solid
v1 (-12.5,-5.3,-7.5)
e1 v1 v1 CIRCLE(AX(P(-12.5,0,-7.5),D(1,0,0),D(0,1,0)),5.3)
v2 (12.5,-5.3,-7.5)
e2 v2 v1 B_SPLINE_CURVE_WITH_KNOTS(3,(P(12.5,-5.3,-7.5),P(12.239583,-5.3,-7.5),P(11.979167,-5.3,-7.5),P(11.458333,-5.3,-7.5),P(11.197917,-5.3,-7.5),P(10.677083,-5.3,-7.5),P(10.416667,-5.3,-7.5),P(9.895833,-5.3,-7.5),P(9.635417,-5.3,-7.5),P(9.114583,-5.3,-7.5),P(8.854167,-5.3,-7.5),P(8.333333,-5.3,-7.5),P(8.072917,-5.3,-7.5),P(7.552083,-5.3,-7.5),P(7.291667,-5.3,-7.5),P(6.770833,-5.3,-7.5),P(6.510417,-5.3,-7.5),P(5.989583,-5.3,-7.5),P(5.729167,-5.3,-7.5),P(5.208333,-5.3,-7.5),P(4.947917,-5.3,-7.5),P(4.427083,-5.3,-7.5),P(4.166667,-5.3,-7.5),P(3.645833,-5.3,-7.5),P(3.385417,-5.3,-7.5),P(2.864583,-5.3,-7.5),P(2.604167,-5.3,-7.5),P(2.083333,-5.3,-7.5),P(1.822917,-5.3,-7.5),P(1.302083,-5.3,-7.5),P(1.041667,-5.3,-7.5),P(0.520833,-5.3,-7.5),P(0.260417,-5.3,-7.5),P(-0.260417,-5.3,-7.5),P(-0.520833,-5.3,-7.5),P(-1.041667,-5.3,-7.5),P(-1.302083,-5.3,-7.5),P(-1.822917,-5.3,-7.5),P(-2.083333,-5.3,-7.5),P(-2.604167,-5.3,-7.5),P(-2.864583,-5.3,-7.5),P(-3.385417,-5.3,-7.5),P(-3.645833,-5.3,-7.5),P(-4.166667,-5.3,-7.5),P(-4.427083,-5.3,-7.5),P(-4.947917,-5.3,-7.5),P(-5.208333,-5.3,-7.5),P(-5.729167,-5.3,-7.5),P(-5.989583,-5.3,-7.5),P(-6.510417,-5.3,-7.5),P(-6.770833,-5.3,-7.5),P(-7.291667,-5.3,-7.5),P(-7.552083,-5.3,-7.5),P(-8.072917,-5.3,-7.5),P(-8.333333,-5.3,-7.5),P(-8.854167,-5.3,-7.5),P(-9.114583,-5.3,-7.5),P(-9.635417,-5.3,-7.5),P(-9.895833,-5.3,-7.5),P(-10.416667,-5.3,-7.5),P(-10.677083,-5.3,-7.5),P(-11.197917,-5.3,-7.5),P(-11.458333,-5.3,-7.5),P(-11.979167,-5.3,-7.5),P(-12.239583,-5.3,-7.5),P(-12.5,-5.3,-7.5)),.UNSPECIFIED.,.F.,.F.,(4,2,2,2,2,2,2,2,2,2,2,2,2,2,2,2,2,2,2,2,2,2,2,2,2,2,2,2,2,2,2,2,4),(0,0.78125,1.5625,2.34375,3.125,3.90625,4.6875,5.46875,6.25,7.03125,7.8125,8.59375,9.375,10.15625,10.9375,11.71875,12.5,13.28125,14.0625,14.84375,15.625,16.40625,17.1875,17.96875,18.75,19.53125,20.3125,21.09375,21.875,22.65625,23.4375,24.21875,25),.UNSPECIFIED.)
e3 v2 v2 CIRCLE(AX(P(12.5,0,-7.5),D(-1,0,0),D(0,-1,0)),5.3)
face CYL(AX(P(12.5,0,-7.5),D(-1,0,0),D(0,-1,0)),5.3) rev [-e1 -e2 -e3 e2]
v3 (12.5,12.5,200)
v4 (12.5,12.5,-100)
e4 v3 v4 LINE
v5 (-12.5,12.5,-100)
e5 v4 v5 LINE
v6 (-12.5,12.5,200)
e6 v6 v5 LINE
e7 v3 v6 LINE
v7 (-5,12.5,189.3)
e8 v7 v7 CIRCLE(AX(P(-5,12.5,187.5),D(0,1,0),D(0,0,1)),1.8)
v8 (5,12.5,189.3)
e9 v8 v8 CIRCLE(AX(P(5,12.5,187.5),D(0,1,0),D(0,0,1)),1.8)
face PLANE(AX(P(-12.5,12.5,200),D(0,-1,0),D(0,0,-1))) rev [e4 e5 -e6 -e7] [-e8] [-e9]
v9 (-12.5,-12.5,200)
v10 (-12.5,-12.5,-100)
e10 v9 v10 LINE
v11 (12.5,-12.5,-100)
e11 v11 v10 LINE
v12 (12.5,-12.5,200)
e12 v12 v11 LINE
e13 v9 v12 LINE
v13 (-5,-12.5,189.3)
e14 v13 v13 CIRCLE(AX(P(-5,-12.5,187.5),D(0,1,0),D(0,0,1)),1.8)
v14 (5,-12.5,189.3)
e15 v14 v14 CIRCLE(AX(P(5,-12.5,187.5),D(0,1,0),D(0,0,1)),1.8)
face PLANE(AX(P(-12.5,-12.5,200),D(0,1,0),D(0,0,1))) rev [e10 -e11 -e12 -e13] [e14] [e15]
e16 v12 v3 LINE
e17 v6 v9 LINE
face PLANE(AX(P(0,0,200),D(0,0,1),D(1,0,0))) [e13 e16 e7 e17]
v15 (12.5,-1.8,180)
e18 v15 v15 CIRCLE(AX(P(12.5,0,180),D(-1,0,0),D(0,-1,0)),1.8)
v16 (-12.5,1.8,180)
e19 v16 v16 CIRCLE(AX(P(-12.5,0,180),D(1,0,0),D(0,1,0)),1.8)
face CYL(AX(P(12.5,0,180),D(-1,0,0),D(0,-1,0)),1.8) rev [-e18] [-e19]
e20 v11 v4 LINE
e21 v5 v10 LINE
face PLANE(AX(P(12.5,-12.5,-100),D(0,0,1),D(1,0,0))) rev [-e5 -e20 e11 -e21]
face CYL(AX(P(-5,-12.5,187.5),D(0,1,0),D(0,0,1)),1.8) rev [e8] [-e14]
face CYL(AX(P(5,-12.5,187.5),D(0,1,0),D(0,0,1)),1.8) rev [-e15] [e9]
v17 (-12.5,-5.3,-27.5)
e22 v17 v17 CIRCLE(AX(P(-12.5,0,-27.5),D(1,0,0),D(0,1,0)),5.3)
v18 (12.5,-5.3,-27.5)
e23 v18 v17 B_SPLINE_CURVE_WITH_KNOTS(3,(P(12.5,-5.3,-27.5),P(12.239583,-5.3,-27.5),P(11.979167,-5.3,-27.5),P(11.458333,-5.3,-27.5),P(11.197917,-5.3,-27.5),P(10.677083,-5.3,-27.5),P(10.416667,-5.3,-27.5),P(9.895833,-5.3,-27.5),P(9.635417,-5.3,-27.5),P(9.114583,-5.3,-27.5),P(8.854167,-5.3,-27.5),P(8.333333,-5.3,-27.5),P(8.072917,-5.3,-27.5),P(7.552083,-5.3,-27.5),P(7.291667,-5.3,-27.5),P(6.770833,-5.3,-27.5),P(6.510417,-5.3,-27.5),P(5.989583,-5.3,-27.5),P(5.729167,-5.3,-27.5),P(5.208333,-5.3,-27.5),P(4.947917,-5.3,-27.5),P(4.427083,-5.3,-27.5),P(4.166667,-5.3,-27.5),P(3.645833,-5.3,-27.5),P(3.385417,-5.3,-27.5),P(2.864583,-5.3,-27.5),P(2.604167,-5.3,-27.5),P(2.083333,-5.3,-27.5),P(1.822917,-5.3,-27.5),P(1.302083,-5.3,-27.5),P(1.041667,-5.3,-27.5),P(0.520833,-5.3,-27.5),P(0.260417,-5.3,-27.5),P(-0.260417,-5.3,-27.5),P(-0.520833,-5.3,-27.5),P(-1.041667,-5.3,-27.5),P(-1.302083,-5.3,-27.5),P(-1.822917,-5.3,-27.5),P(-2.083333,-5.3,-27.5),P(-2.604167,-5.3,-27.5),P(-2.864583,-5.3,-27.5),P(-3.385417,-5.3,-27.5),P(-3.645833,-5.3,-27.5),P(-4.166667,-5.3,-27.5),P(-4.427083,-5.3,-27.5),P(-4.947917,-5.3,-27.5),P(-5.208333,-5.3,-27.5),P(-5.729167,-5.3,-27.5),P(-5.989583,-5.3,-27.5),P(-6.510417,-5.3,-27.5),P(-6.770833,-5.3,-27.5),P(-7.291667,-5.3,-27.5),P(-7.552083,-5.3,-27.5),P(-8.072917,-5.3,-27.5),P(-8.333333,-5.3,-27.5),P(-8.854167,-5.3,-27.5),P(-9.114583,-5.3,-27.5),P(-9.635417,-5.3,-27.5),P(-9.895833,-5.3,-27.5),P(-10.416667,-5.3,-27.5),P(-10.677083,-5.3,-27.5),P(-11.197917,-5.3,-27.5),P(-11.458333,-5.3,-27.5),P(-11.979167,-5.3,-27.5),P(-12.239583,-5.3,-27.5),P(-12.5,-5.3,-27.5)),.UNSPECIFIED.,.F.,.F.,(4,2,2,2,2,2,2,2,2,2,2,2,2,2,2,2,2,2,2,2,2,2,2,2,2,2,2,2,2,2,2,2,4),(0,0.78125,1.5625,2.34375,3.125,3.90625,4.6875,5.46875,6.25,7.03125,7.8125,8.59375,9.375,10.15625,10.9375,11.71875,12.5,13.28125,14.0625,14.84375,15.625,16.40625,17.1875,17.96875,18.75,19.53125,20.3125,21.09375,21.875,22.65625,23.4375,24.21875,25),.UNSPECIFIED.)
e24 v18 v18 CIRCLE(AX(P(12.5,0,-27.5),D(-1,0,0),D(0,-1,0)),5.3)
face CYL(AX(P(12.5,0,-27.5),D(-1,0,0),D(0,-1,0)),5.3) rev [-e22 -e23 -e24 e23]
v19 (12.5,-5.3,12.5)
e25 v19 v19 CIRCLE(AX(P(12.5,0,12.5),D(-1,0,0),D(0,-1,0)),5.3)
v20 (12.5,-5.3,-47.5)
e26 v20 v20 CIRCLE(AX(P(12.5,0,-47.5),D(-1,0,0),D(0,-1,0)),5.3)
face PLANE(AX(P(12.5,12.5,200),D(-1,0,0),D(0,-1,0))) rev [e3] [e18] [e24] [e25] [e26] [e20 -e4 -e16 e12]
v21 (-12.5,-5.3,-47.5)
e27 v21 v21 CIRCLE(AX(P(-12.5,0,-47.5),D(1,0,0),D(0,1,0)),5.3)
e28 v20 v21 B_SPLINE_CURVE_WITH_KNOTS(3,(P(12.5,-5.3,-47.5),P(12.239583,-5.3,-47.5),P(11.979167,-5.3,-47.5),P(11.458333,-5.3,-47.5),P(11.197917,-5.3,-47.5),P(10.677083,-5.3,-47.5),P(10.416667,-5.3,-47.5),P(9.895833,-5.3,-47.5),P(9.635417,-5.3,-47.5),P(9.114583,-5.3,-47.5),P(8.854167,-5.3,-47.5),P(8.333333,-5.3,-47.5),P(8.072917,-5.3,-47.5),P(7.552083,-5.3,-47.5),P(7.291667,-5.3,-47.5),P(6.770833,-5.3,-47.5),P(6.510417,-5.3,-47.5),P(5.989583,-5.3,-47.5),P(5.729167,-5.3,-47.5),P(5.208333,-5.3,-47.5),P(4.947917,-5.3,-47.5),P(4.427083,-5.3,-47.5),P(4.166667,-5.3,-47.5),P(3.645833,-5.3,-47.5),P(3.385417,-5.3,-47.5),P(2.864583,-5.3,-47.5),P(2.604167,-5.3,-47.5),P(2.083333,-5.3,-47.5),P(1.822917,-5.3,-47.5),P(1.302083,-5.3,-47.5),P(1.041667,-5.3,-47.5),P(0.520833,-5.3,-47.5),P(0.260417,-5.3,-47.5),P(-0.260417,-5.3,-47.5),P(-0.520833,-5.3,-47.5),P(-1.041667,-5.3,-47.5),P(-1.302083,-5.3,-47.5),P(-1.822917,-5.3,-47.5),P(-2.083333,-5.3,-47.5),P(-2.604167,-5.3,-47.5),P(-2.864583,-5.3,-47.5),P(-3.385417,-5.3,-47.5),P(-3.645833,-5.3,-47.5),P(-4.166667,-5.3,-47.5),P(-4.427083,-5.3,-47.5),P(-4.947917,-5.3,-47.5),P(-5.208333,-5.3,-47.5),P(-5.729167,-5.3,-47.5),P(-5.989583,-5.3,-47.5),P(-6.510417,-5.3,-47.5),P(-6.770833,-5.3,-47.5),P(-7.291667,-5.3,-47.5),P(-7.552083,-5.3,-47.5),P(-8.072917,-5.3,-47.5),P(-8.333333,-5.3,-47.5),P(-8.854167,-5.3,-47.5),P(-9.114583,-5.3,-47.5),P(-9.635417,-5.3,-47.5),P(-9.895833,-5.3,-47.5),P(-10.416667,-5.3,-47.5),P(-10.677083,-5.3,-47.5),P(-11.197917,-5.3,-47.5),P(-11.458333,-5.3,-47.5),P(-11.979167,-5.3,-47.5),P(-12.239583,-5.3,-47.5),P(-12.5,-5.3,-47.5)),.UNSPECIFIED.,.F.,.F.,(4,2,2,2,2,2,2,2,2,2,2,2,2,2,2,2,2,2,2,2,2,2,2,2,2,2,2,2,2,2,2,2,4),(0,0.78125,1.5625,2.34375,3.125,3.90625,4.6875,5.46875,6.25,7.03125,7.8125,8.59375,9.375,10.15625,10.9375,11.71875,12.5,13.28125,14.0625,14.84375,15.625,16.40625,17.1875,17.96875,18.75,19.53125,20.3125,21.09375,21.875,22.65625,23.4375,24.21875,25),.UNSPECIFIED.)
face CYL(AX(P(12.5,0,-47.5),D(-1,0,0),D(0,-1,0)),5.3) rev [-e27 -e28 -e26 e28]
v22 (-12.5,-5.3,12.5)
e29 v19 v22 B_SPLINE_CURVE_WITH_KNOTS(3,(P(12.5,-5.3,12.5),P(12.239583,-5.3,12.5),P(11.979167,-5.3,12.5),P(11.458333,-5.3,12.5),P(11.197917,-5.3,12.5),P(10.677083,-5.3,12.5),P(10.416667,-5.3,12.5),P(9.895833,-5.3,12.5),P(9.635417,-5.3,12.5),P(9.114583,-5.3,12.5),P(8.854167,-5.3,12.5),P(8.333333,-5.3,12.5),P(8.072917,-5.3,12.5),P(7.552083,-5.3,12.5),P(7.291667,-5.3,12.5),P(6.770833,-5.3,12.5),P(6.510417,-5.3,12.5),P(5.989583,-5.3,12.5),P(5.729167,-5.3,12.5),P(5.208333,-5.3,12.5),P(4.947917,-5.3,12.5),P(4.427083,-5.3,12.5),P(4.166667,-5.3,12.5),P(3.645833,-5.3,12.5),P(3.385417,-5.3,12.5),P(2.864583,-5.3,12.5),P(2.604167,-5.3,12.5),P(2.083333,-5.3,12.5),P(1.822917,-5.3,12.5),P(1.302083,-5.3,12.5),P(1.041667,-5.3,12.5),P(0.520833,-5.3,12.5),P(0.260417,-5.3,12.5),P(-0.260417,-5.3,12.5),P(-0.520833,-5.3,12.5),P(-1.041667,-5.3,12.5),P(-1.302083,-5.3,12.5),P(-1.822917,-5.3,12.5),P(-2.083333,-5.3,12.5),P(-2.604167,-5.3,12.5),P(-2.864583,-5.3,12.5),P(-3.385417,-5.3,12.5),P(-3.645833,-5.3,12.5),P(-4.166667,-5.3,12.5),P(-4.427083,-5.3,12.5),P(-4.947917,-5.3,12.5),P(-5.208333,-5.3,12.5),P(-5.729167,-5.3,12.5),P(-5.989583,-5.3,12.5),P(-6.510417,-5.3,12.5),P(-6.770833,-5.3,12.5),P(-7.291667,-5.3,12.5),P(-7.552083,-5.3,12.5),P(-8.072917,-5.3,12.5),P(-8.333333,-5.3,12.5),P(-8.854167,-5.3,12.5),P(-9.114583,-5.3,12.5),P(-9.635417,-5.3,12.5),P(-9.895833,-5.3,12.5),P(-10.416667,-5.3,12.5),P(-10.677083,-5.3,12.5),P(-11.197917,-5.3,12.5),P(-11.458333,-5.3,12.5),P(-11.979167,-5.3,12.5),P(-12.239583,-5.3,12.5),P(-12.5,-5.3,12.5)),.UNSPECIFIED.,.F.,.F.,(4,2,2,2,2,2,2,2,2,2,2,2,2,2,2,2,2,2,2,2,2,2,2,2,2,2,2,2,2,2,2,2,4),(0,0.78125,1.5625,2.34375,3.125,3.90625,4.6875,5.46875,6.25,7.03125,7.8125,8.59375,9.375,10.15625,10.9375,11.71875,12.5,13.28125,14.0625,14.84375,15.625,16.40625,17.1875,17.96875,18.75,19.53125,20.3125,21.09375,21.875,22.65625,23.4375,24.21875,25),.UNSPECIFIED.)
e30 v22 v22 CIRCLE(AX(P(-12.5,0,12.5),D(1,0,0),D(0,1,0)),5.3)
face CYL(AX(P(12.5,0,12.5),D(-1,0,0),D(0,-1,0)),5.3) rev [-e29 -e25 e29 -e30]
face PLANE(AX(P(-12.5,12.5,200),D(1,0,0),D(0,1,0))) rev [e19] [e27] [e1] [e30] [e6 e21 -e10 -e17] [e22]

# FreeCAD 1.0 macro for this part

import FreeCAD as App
import Part
import Sketcher

doc = App.newDocument("Part")
params = doc.addObject("Spreadsheet::Sheet", "Params")
for row, (alias, value) in enumerate([
    ("sketch1_width", "25 mm"),
    ("pad1_length", "200 mm"),
    ("sketch2_diameter", "5 mm"),
    ("sketch3_diameter", "3.6 mm"),
    ("sketch4_diameter", "3.6 mm"),
    ("pocket3_length", "405.887361 mm"),
    ("sketch5_diameter", "5 mm"),
    ("sketch6_diameter", "10.6 mm"),
    ("sketch7_width", "25 mm"),
    ("sketch7_height", "75 mm"),
], start=1):
    params.set(f"A{row}", alias)
    params.set(f"B{row}", "=" + value)
    params.setAlias(f"B{row}", alias)

body = doc.addObject("PartDesign::Body", "Body")

sketch1 = body.newObject("Sketcher::SketchObject", "Sketch")
sketch1.AttachmentSupport = (doc.getObject("XY_Plane"), [""])
sketch1.MapMode = "FlatFace"
sketch1.addGeometry(Part.LineSegment(App.Vector(-12, 12, 0), App.Vector(-12, -12, 0)), False)
sketch1.addGeometry(Part.LineSegment(App.Vector(-12, -12, 0), App.Vector(12, -12, 0)), False)
sketch1.addGeometry(Part.LineSegment(App.Vector(12, -12, 0), App.Vector(12, 12, 0)), False)
sketch1.addGeometry(Part.LineSegment(App.Vector(12, 12, 0), App.Vector(-12, 12, 0)), False)
sketch1.addConstraint(Sketcher.Constraint("Coincident", 0, 2, 1, 1))
sketch1.addConstraint(Sketcher.Constraint("Coincident", 1, 2, 2, 1))
sketch1.addConstraint(Sketcher.Constraint("Coincident", 2, 2, 3, 1))
sketch1.addConstraint(Sketcher.Constraint("Coincident", 3, 2, 0, 1))
sketch1.addConstraint(Sketcher.Constraint("Vertical", 0))
sketch1.addConstraint(Sketcher.Constraint("Horizontal", 1))
sketch1.addConstraint(Sketcher.Constraint("Vertical", 2))
sketch1.addConstraint(Sketcher.Constraint("Horizontal", 3))
sketch1.addConstraint(Sketcher.Constraint("Symmetric", 0, 2, 2, 2, -1, 1))
sketch1.addConstraint(Sketcher.Constraint("Equal", 3, 0))
sketch1.addConstraint(Sketcher.Constraint("DistanceX", 1, 1, 1, 2, 25.0))
sketch1.setExpression("Constraints[10]", "Params.sketch1_width")
pad1 = body.newObject("PartDesign::Pad", "Pad")
pad1.Profile = sketch1
pad1.setExpression("Length", "Params.pad1_length")

sketch2 = body.newObject("Sketcher::SketchObject", "Sketch001")
sketch2.AttachmentSupport = (doc.getObject("YZ_Plane"), [""])
sketch2.MapMode = "FlatFace"
sketch2.AttachmentOffset = App.Placement(App.Vector(0, 0, 12.5), App.Rotation())
sketch2.addGeometry(Part.Circle(App.Vector(0, 12.5, 0), App.Vector(0, 0, 1), 2.5), False)
sketch2.addConstraint(Sketcher.Constraint("PointOnObject", 0, 3, -2))
sketch2.addConstraint(Sketcher.Constraint("Diameter", 0, 5.0))
sketch2.addConstraint(Sketcher.Constraint("DistanceY", -1, 1, 0, 3, 12.5))
sketch2.setExpression("Constraints[1]", "Params.sketch2_diameter")
pocket1 = body.newObject("PartDesign::Pocket", "Pocket")
pocket1.Profile = sketch2
pocket1.Type = "ThroughAll"

sketch3 = body.newObject("Sketcher::SketchObject", "Sketch002")
sketch3.AttachmentSupport = (doc.getObject("XZ_Plane"), [""])
sketch3.MapMode = "FlatFace"
sketch3.AttachmentOffset = App.Placement(App.Vector(0, 0, -12.5), App.Rotation())
sketch3.addGeometry(Part.Circle(App.Vector(-5, 187.5, 0), App.Vector(0, 0, 1), 1.8), False)
sketch3.addGeometry(Part.Circle(App.Vector(5, 187.5, 0), App.Vector(0, 0, 1), 1.8), False)
sketch3.addConstraint(Sketcher.Constraint("Equal", 0, 1))
sketch3.addConstraint(Sketcher.Constraint("Symmetric", 0, 3, 1, 3, -2))
sketch3.addConstraint(Sketcher.Constraint("Diameter", 0, 3.6))
sketch3.addConstraint(Sketcher.Constraint("DistanceX", 0, 3, -1, 1, 5.0))
sketch3.addConstraint(Sketcher.Constraint("DistanceY", -1, 1, 0, 3, 187.5))
sketch3.setExpression("Constraints[2]", "Params.sketch3_diameter")
pocket2 = body.newObject("PartDesign::Pocket", "Pocket001")
pocket2.Profile = sketch3
pocket2.Type = "ThroughAll"
pocket2.Reversed = True

sketch4 = body.newObject("Sketcher::SketchObject", "Sketch003")
sketch4.AttachmentSupport = (doc.getObject("YZ_Plane"), [""])
sketch4.MapMode = "FlatFace"
sketch4.AttachmentOffset = App.Placement(App.Vector(0, 0, -12.5), App.Rotation())
sketch4.addGeometry(Part.Circle(App.Vector(0, 180, 0), App.Vector(0, 0, 1), 1.8), False)
sketch4.addConstraint(Sketcher.Constraint("PointOnObject", 0, 3, -2))
sketch4.addConstraint(Sketcher.Constraint("Diameter", 0, 3.6))
sketch4.addConstraint(Sketcher.Constraint("DistanceY", -1, 1, 0, 3, 180.0))
sketch4.setExpression("Constraints[1]", "Params.sketch4_diameter")
pocket3 = body.newObject("PartDesign::Pocket", "Pocket002")
pocket3.Profile = sketch4
pocket3.setExpression("Length", "Params.pocket3_length")
pocket3.Midplane = True
doc.recompute()

datumplane = body.newObject("PartDesign::Plane", "DatumPlane")
datumplane.AttachmentSupport = (doc.getObject("XY_Plane"), [""])
datumplane.MapMode = "FlatFace"
datumplane.AttachmentOffset = App.Placement(App.Vector(0, 0, 12.5), App.Rotation())
mirrored = body.newObject("PartDesign::Mirrored", "Mirrored")
mirrored.Originals = [pad1, pocket1, pocket2, pocket3]
mirrored.MirrorPlane = (datumplane, [""])
body.Tip = mirrored

sketch5 = body.newObject("Sketcher::SketchObject", "Sketch004")
sketch5.AttachmentSupport = (doc.getObject("YZ_Plane"), [""])
sketch5.MapMode = "FlatFace"
sketch5.AttachmentOffset = App.Placement(App.Vector(0, 0, 12.5), App.Rotation())
sketch5.addGeometry(Part.Circle(App.Vector(0, -7.5, 0), App.Vector(0, 0, 1), 2.5), False)
sketch5.addGeometry(Part.Circle(App.Vector(0, 12.5, 0), App.Vector(0, 0, 1), 2.5), False)
sketch5.addGeometry(Part.Circle(App.Vector(0, -27.5, 0), App.Vector(0, 0, 1), 2.5), False)
sketch5.addGeometry(Part.Circle(App.Vector(0, -47.5, 0), App.Vector(0, 0, 1), 2.5), False)
sketch5.addConstraint(Sketcher.Constraint("Equal", 0, 1))
sketch5.addConstraint(Sketcher.Constraint("Equal", 1, 2))
sketch5.addConstraint(Sketcher.Constraint("Equal", 2, 3))
sketch5.addConstraint(Sketcher.Constraint("PointOnObject", 0, 3, -2))
sketch5.addConstraint(Sketcher.Constraint("PointOnObject", 1, 3, -2))
sketch5.addConstraint(Sketcher.Constraint("PointOnObject", 2, 3, -2))
sketch5.addConstraint(Sketcher.Constraint("PointOnObject", 3, 3, -2))
sketch5.addConstraint(Sketcher.Constraint("Diameter", 0, 5.0))
sketch5.addConstraint(Sketcher.Constraint("DistanceY", 0, 3, 1, 3, 20.0))
sketch5.addConstraint(Sketcher.Constraint("DistanceY", 2, 3, 0, 3, 20.0))
sketch5.addConstraint(Sketcher.Constraint("DistanceY", 3, 3, 2, 3, 20.0))
sketch5.addConstraint(Sketcher.Constraint("DistanceY", 0, 3, -1, 1, 7.5))
sketch5.setExpression("Constraints[7]", "Params.sketch5_diameter")
pocket4 = body.newObject("PartDesign::Pocket", "Pocket003")
pocket4.Profile = sketch5
pocket4.Type = "ThroughAll"
pocket4.Midplane = True

sketch6 = body.newObject("Sketcher::SketchObject", "Sketch005")
sketch6.AttachmentSupport = (doc.getObject("YZ_Plane"), [""])
sketch6.MapMode = "FlatFace"
sketch6.AttachmentOffset = App.Placement(App.Vector(0, 0, -12.5), App.Rotation())
sketch6.addGeometry(Part.Circle(App.Vector(0, -48, 0), App.Vector(0, 0, 1), 5), False)
sketch6.addGeometry(Part.Circle(App.Vector(0, -28, 0), App.Vector(0, 0, 1), 5), False)
sketch6.addGeometry(Part.Circle(App.Vector(0, -8, 0), App.Vector(0, 0, 1), 5), False)
sketch6.addGeometry(Part.Circle(App.Vector(0, 12, 0), App.Vector(0, 0, 1), 5), False)
sketch6.addConstraint(Sketcher.Constraint("Equal", 0, 1))
sketch6.addConstraint(Sketcher.Constraint("Equal", 1, 2))
sketch6.addConstraint(Sketcher.Constraint("Equal", 2, 3))
sketch6.addConstraint(Sketcher.Constraint("PointOnObject", 0, 3, -2))
sketch6.addConstraint(Sketcher.Constraint("PointOnObject", 1, 3, -2))
sketch6.addConstraint(Sketcher.Constraint("PointOnObject", 2, 3, -2))
sketch6.addConstraint(Sketcher.Constraint("PointOnObject", 3, 3, -2))
sketch6.addConstraint(Sketcher.Constraint("Diameter", 0, 10.6))
sketch6.addConstraint(Sketcher.Constraint("DistanceY", 0, 3, 1, 3, 20.0))
sketch6.addConstraint(Sketcher.Constraint("DistanceY", 1, 3, 2, 3, 20.0))
sketch6.addConstraint(Sketcher.Constraint("DistanceY", 2, 3, 3, 3, 20.0))
sketch6.addConstraint(Sketcher.Constraint("DistanceY", 0, 3, -1, 1, 47.5))
sketch6.setExpression("Constraints[7]", "Params.sketch6_diameter")
pocket5 = body.newObject("PartDesign::Pocket", "Pocket004")
pocket5.Profile = sketch6
pocket5.Type = "ThroughAll"
pocket5.Midplane = True

sketch7 = body.newObject("Sketcher::SketchObject", "Sketch006")
sketch7.AttachmentSupport = (doc.getObject("YZ_Plane"), [""])
sketch7.MapMode = "FlatFace"
sketch7.AttachmentOffset = App.Placement(App.Vector(0, 0, -12.5), App.Rotation())
sketch7.addGeometry(Part.LineSegment(App.Vector(12, -175, 0), App.Vector(-12, -175, 0)), False)
sketch7.addGeometry(Part.LineSegment(App.Vector(-12, -175, 0), App.Vector(-12, -100, 0)), False)
sketch7.addGeometry(Part.LineSegment(App.Vector(-12, -100, 0), App.Vector(12, -100, 0)), False)
sketch7.addGeometry(Part.LineSegment(App.Vector(12, -100, 0), App.Vector(12, -175, 0)), False)
sketch7.addConstraint(Sketcher.Constraint("Coincident", 0, 2, 1, 1))
sketch7.addConstraint(Sketcher.Constraint("Coincident", 1, 2, 2, 1))
sketch7.addConstraint(Sketcher.Constraint("Coincident", 2, 2, 3, 1))
sketch7.addConstraint(Sketcher.Constraint("Coincident", 3, 2, 0, 1))
sketch7.addConstraint(Sketcher.Constraint("Horizontal", 0))
sketch7.addConstraint(Sketcher.Constraint("Vertical", 1))
sketch7.addConstraint(Sketcher.Constraint("Horizontal", 2))
sketch7.addConstraint(Sketcher.Constraint("Vertical", 3))
sketch7.addConstraint(Sketcher.Constraint("DistanceX", 0, 2, 0, 1, 25.0))
sketch7.addConstraint(Sketcher.Constraint("DistanceY", 1, 1, 1, 2, 75.0))
sketch7.addConstraint(Sketcher.Constraint("DistanceY", 0, 2, -1, 1, 175.0))
sketch7.addConstraint(Sketcher.Constraint("DistanceX", 0, 2, -1, 1, 12.5))
sketch7.setExpression("Constraints[8]", "Params.sketch7_width")
sketch7.setExpression("Constraints[9]", "Params.sketch7_height")
pocket6 = body.newObject("PartDesign::Pocket", "Pocket005")
pocket6.Profile = sketch7
pocket6.Type = "ThroughAll"
pocket6.Midplane = True

doc.recompute()
